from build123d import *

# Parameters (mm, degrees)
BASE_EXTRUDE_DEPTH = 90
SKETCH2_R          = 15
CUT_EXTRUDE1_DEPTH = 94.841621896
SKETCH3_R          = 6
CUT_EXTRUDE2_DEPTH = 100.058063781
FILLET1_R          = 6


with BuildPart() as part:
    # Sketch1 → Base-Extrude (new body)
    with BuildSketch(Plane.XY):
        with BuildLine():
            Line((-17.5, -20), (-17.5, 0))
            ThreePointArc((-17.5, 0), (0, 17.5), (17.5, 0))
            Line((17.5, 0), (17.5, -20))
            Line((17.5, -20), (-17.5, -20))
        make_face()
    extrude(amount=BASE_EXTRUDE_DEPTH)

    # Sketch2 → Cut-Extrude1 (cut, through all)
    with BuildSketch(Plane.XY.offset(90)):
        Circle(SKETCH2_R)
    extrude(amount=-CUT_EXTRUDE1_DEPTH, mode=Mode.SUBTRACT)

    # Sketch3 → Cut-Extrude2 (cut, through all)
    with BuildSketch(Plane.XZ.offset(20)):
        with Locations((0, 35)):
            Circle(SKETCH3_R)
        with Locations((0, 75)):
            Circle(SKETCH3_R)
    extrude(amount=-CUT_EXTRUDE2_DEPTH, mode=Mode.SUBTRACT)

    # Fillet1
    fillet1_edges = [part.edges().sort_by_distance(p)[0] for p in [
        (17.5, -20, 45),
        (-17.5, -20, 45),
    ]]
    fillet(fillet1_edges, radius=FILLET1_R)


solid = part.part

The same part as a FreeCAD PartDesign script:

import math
import FreeCAD as App
import Part
import Sketcher
Q = App.Units.Quantity


def edges_at(feature, points):
    """Names of the edges that pass closest to the given points."""
    edges = feature.Shape.Edges
    near = lambda p: min(range(len(edges)), key=lambda i: edges[i].distToShape(Part.Vertex(*p))[0])
    return sorted({f"Edge{near(p) + 1}" for p in points})

doc = App.newDocument("Part")
params = doc.addObject("Spreadsheet::Sheet", "Params")
for row, (alias, value) in enumerate([
    ("sketch1_radius", "17.5 mm"),
    ("sketch1_height", "20 mm"),
    ("pad1_length", "90 mm"),
    ("sketch2_diameter", "30 mm"),
    ("sketch3_diameter", "12 mm"),
    ("fillet_radius", "6 mm"),
], start=1):
    params.set(f"A{row}", alias)
    params.set(f"B{row}", "=" + value)
    params.setAlias(f"B{row}", alias)

body = doc.addObject("PartDesign::Body", "Body")

sketch1 = body.newObject("Sketcher::SketchObject", "Sketch")
sketch1.AttachmentSupport = (doc.getObject("XY_Plane"), [""])
sketch1.MapMode = "FlatFace"
sketch1.addGeometry([
    Part.LineSegment(App.Vector(-18, 0, 0), App.Vector(-18, -20, 0)),
    Part.LineSegment(App.Vector(-18, -20, 0), App.Vector(18, -20, 0)),
    Part.LineSegment(App.Vector(18, -20, 0), App.Vector(18, 0, 0)),
    Part.ArcOfCircle(Part.Circle(App.Vector(0, 0, 0), App.Vector(0, 0, 1), 18), math.radians(0), math.radians(180)),
], False)
sketch1.addConstraint([
    Sketcher.Constraint("Coincident", 0, 2, 1, 1),
    Sketcher.Constraint("Coincident", 1, 2, 2, 1),
    Sketcher.Constraint("Tangent", 2, 2, 3, 1),
    Sketcher.Constraint("Tangent", 3, 2, 0, 1),
    Sketcher.Constraint("Vertical", 0),
    Sketcher.Constraint("Horizontal", 1),
    Sketcher.Constraint("Vertical", 2),
    Sketcher.Constraint("Coincident", 3, 3, -1, 1),
    Sketcher.Constraint("Radius", 3, Q("17.5 mm")),
    Sketcher.Constraint("DistanceY", 0, 2, 0, 1, Q("20 mm")),
])
sketch1.setExpression("Constraints[8]", "Params.sketch1_radius")
sketch1.setExpression("Constraints[9]", "Params.sketch1_height")
pad1 = body.newObject("PartDesign::Pad", "Pad")
pad1.Profile = sketch1
pad1.setExpression("Length", "Params.pad1_length")

sketch2 = body.newObject("Sketcher::SketchObject", "Sketch001")
sketch2.AttachmentSupport = (doc.getObject("XY_Plane"), [""])
sketch2.MapMode = "FlatFace"
sketch2.AttachmentOffset = App.Placement(App.Vector(0, 0, 90), App.Rotation())
sketch2.addGeometry(Part.Circle(App.Vector(0, 0, 0), App.Vector(0, 0, 1), 15), False)
sketch2.addConstraint([
    Sketcher.Constraint("Coincident", 0, 3, -1, 1),
    Sketcher.Constraint("Diameter", 0, Q("30 mm")),
])
sketch2.setExpression("Constraints[1]", "Params.sketch2_diameter")
pocket1 = body.newObject("PartDesign::Pocket", "Pocket")
pocket1.Profile = sketch2
pocket1.Type = "ThroughAll"

sketch3 = body.newObject("Sketcher::SketchObject", "Sketch002")
sketch3.AttachmentSupport = (doc.getObject("XZ_Plane"), [""])
sketch3.MapMode = "FlatFace"
sketch3.AttachmentOffset = App.Placement(App.Vector(0, 0, 20), App.Rotation())
sketch3.addGeometry([
    Part.Circle(App.Vector(0, 35, 0), App.Vector(0, 0, 1), 6),
    Part.Circle(App.Vector(0, 75, 0), App.Vector(0, 0, 1), 6),
], False)
sketch3.addConstraint([
    Sketcher.Constraint("Equal", 0, 1),
    Sketcher.Constraint("PointOnObject", 0, 3, -2),
    Sketcher.Constraint("PointOnObject", 1, 3, -2),
    Sketcher.Constraint("Diameter", 0, Q("12 mm")),
    Sketcher.Constraint("DistanceY", -1, 1, 0, 3, Q("35 mm")),
    Sketcher.Constraint("DistanceY", -1, 1, 1, 3, Q("75 mm")),
])
sketch3.setExpression("Constraints[3]", "Params.sketch3_diameter")
pocket2 = body.newObject("PartDesign::Pocket", "Pocket001")
pocket2.Profile = sketch3
pocket2.Type = "ThroughAll"
doc.recompute()

fillet = body.newObject("PartDesign::Fillet", "Fillet")
fillet.Base = (pocket2, edges_at(pocket2, [(17.5, -20, 45), (-17.5, -20, 45)]))
fillet.setExpression("Radius", "Params.fillet_radius")

doc.recompute()
